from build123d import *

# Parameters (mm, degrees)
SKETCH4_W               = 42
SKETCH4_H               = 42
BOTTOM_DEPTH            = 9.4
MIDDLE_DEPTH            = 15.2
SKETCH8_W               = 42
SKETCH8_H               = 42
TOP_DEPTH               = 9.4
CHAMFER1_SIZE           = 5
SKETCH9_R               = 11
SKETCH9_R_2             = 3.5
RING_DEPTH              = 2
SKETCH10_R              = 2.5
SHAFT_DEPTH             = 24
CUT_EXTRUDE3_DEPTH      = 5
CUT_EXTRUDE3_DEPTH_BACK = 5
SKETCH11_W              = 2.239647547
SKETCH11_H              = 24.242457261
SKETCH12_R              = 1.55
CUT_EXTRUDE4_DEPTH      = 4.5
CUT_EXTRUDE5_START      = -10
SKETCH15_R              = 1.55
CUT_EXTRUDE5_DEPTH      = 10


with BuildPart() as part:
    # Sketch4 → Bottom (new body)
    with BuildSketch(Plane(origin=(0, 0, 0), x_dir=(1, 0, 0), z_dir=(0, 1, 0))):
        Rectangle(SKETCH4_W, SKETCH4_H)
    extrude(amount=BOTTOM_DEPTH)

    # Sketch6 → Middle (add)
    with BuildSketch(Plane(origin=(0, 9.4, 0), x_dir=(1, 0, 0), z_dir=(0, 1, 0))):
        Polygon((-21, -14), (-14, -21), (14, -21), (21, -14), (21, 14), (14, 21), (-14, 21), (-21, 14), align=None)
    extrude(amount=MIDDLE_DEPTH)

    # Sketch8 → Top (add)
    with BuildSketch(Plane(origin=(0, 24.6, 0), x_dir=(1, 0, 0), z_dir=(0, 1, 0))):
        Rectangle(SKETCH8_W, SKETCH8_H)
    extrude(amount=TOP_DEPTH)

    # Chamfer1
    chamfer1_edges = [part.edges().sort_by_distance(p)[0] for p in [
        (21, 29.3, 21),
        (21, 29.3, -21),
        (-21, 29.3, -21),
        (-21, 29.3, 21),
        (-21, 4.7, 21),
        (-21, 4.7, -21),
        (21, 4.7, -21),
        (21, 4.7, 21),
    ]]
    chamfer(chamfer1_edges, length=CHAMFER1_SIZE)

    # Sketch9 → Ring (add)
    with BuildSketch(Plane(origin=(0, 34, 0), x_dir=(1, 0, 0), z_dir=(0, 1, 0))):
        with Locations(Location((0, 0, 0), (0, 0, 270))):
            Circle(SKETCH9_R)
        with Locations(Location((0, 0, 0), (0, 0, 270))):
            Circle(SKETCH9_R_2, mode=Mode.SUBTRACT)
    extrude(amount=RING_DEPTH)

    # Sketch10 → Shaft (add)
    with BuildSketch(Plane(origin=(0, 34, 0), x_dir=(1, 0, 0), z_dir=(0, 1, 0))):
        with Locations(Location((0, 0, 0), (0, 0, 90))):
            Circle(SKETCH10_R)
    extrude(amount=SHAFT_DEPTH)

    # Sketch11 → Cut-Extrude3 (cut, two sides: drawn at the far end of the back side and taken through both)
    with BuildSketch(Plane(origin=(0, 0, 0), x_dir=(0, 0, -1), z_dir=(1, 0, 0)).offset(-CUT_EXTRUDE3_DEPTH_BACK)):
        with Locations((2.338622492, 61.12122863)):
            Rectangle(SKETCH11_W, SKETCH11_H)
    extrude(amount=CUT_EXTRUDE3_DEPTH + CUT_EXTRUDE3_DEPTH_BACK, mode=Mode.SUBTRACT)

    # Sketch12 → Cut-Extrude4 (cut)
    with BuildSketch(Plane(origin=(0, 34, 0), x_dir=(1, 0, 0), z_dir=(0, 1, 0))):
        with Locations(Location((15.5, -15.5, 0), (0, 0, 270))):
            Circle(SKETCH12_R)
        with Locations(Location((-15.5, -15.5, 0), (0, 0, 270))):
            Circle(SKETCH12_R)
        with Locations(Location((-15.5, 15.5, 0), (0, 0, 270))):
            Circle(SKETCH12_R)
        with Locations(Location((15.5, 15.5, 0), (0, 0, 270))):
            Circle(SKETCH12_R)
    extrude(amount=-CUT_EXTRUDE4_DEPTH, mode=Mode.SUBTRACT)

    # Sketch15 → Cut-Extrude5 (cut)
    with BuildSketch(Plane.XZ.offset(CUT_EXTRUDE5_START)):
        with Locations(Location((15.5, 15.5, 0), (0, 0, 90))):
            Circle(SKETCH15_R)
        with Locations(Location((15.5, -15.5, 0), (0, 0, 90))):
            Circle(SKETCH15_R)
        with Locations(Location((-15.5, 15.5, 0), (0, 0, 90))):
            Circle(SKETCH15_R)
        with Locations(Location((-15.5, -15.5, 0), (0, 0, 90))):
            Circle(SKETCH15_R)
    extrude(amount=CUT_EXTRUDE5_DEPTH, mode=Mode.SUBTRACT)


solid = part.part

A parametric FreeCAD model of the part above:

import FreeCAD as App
import Part
import Sketcher

V = App.Vector
Q = App.Units.Quantity


def edges_at(feature, points):
    """Names of the edges that pass closest to the given points."""
    edges = feature.Shape.Edges
    near = lambda p: min(range(len(edges)), key=lambda i: edges[i].distToShape(Part.Vertex(*p))[0])
    return sorted({f"Edge{near(p) + 1}" for p in points})

doc = App.newDocument("Part")
body = doc.addObject("PartDesign::Body", "Body")

sketch1 = doc.addObject("Sketcher::SketchObject", "Sketch")
body.addObject(sketch1)
sketch1.AttachmentSupport = (doc.XZ_Plane, [""])
sketch1.MapMode = "FlatFace"
sketch1.addGeometry(Part.LineSegment(V(-21, -21, 0), V(-21, 21, 0)), False)
sketch1.addGeometry(Part.LineSegment(V(-21, 21, 0), V(21, 21, 0)), False)
sketch1.addGeometry(Part.LineSegment(V(21, 21, 0), V(21, -21, 0)), False)
sketch1.addGeometry(Part.LineSegment(V(21, -21, 0), V(-21, -21, 0)), False)
sketch1.addConstraint(Sketcher.Constraint("Coincident", 0, 2, 1, 1))
sketch1.addConstraint(Sketcher.Constraint("Coincident", 1, 2, 2, 1))
sketch1.addConstraint(Sketcher.Constraint("Coincident", 2, 2, 3, 1))
sketch1.addConstraint(Sketcher.Constraint("Coincident", 3, 2, 0, 1))
sketch1.addConstraint(Sketcher.Constraint("Vertical", 0))
sketch1.addConstraint(Sketcher.Constraint("Horizontal", 1))
sketch1.addConstraint(Sketcher.Constraint("Vertical", 2))
sketch1.addConstraint(Sketcher.Constraint("Horizontal", 3))
sketch1.addConstraint(Sketcher.Constraint("Symmetric", 0, 2, 2, 2, -1, 1))
sketch1.addConstraint(Sketcher.Constraint("Equal", 3, 0))
sketch1.addConstraint(Sketcher.Constraint("DistanceX", 1, 1, 1, 2, Q("42 mm")))
pad1 = doc.addObject("PartDesign::Pad", "Pad")
body.addObject(pad1)
pad1.Profile = sketch1
pad1.Length = 9.4
pad1.Reversed = True

sketch2 = doc.addObject("Sketcher::SketchObject", "Sketch001")
body.addObject(sketch2)
sketch2.AttachmentSupport = (doc.XZ_Plane, [""])
sketch2.MapMode = "FlatFace"
sketch2.AttachmentOffset = App.Placement(V(0, 0, -9.4), App.Rotation())
sketch2.addGeometry(Part.LineSegment(V(-21, 14, 0), V(-14, 21, 0)), False)
sketch2.addGeometry(Part.LineSegment(V(-14, 21, 0), V(14, 21, 0)), False)
sketch2.addGeometry(Part.LineSegment(V(14, 21, 0), V(21, 14, 0)), False)
sketch2.addGeometry(Part.LineSegment(V(21, 14, 0), V(21, -14, 0)), False)
sketch2.addGeometry(Part.LineSegment(V(21, -14, 0), V(14, -21, 0)), False)
sketch2.addGeometry(Part.LineSegment(V(14, -21, 0), V(-14, -21, 0)), False)
sketch2.addGeometry(Part.LineSegment(V(-14, -21, 0), V(-21, -14, 0)), False)
sketch2.addGeometry(Part.LineSegment(V(-21, -14, 0), V(-21, 14, 0)), False)
sketch2.addConstraint(Sketcher.Constraint("Coincident", 0, 2, 1, 1))
sketch2.addConstraint(Sketcher.Constraint("Coincident", 1, 2, 2, 1))
sketch2.addConstraint(Sketcher.Constraint("Coincident", 2, 2, 3, 1))
sketch2.addConstraint(Sketcher.Constraint("Coincident", 3, 2, 4, 1))
sketch2.addConstraint(Sketcher.Constraint("Coincident", 4, 2, 5, 1))
sketch2.addConstraint(Sketcher.Constraint("Coincident", 5, 2, 6, 1))
sketch2.addConstraint(Sketcher.Constraint("Coincident", 6, 2, 7, 1))
sketch2.addConstraint(Sketcher.Constraint("Coincident", 7, 2, 0, 1))
sketch2.addConstraint(Sketcher.Constraint("Horizontal", 1))
sketch2.addConstraint(Sketcher.Constraint("Vertical", 3))
sketch2.addConstraint(Sketcher.Constraint("Horizontal", 5))
sketch2.addConstraint(Sketcher.Constraint("Vertical", 7))
sketch2.addConstraint(Sketcher.Constraint("Symmetric", 0, 2, 4, 2, -1, 1))
sketch2.addConstraint(Sketcher.Constraint("Symmetric", 2, 2, 6, 2, -1, 1))
sketch2.addConstraint(Sketcher.Constraint("Perpendicular", 0, 2))
sketch2.addConstraint(Sketcher.Constraint("Perpendicular", 2, 4))
sketch2.addConstraint(Sketcher.Constraint("Perpendicular", 4, 6))
sketch2.addConstraint(Sketcher.Constraint("Horizontal", 3, 2, 6, 2))
sketch2.addConstraint(Sketcher.Constraint("Vertical", 1, 2, 4, 2))
sketch2.addConstraint(Sketcher.Constraint("Equal", 5, 3))
sketch2.addConstraint(Sketcher.Constraint("DistanceX", 1, 1, 1, 2, Q("28 mm")))
sketch2.addConstraint(Sketcher.Constraint("DistanceY", -1, 1, 0, 2, Q("21 mm")))
pad2 = doc.addObject("PartDesign::Pad", "Pad001")
body.addObject(pad2)
pad2.Profile = sketch2
pad2.Length = 15.2
pad2.Reversed = True

sketch3 = doc.addObject("Sketcher::SketchObject", "Sketch002")
body.addObject(sketch3)
sketch3.AttachmentSupport = (doc.XZ_Plane, [""])
sketch3.MapMode = "FlatFace"
sketch3.AttachmentOffset = App.Placement(V(0, 0, -24.6), App.Rotation())
sketch3.addGeometry(Part.LineSegment(V(-21, -21, 0), V(-21, 21, 0)), False)
sketch3.addGeometry(Part.LineSegment(V(-21, 21, 0), V(21, 21, 0)), False)
sketch3.addGeometry(Part.LineSegment(V(21, 21, 0), V(21, -21, 0)), False)
sketch3.addGeometry(Part.LineSegment(V(21, -21, 0), V(-21, -21, 0)), False)
sketch3.addConstraint(Sketcher.Constraint("Coincident", 0, 2, 1, 1))
sketch3.addConstraint(Sketcher.Constraint("Coincident", 1, 2, 2, 1))
sketch3.addConstraint(Sketcher.Constraint("Coincident", 2, 2, 3, 1))
sketch3.addConstraint(Sketcher.Constraint("Coincident", 3, 2, 0, 1))
sketch3.addConstraint(Sketcher.Constraint("Vertical", 0))
sketch3.addConstraint(Sketcher.Constraint("Horizontal", 1))
sketch3.addConstraint(Sketcher.Constraint("Vertical", 2))
sketch3.addConstraint(Sketcher.Constraint("Horizontal", 3))
sketch3.addConstraint(Sketcher.Constraint("Symmetric", 0, 2, 2, 2, -1, 1))
sketch3.addConstraint(Sketcher.Constraint("Equal", 3, 0))
sketch3.addConstraint(Sketcher.Constraint("DistanceX", 1, 1, 1, 2, Q("42 mm")))
pad3 = doc.addObject("PartDesign::Pad", "Pad002")
body.addObject(pad3)
pad3.Profile = sketch3
pad3.Length = 9.4
pad3.Reversed = True
doc.recompute()

chamfer = doc.addObject("PartDesign::Chamfer", "Chamfer")
body.addObject(chamfer)
chamfer.Base = (pad3, edges_at(pad3, [
    (21, 29.3, 21),
    (21, 29.3, -21),
    (-21, 29.3, -21),
    (-21, 29.3, 21),
    (-21, 4.7, 21),
    (-21, 4.7, -21),
    (21, 4.7, -21),
    (21, 4.7, 21),
]))
chamfer.Size = 5

sketch4 = doc.addObject("Sketcher::SketchObject", "Sketch003")
body.addObject(sketch4)
sketch4.AttachmentSupport = (doc.XZ_Plane, [""])
sketch4.MapMode = "FlatFace"
sketch4.AttachmentOffset = App.Placement(V(0, 0, -34), App.Rotation())
sketch4.addGeometry(Part.Circle(V(0, 0, 0), V(0, 0, 1), 11), False)
sketch4.addGeometry(Part.Circle(V(0, 0, 0), V(0, 0, 1), 3.5), False)
sketch4.addConstraint(Sketcher.Constraint("Coincident", 0, 3, -1, 1))
sketch4.addConstraint(Sketcher.Constraint("Coincident", 1, 3, -1, 1))
sketch4.addConstraint(Sketcher.Constraint("Diameter", 0, Q("22 mm")))
sketch4.addConstraint(Sketcher.Constraint("Diameter", 1, Q("7 mm")))
pad4 = doc.addObject("PartDesign::Pad", "Pad003")
body.addObject(pad4)
pad4.Profile = sketch4
pad4.Length = 2
pad4.Reversed = True

sketch5 = doc.addObject("Sketcher::SketchObject", "Sketch004")
body.addObject(sketch5)
sketch5.AttachmentSupport = (doc.XZ_Plane, [""])
sketch5.MapMode = "FlatFace"
sketch5.AttachmentOffset = App.Placement(V(0, 0, -34), App.Rotation())
sketch5.addGeometry(Part.Circle(V(0, 0, 0), V(0, 0, 1), 2.5), False)
sketch5.addConstraint(Sketcher.Constraint("Coincident", 0, 3, -1, 1))
sketch5.addConstraint(Sketcher.Constraint("Diameter", 0, Q("5 mm")))
pad5 = doc.addObject("PartDesign::Pad", "Pad004")
body.addObject(pad5)
pad5.Profile = sketch5
pad5.Length = 24
pad5.Reversed = True

sketch6 = doc.addObject("Sketcher::SketchObject", "Sketch005")
body.addObject(sketch6)
sketch6.AttachmentSupport = (doc.YZ_Plane, [""])
sketch6.MapMode = "FlatFace"
sketch6.addGeometry(Part.LineSegment(V(73.2, -1.2, 0), V(49, -1.2, 0)), False)
sketch6.addGeometry(Part.LineSegment(V(49, -1.2, 0), V(49, -3.5, 0)), False)
sketch6.addGeometry(Part.LineSegment(V(49, -3.5, 0), V(73.2, -3.5, 0)), False)
sketch6.addGeometry(Part.LineSegment(V(73.2, -3.5, 0), V(73.2, -1.2, 0)), False)
sketch6.addConstraint(Sketcher.Constraint("Coincident", 0, 2, 1, 1))
sketch6.addConstraint(Sketcher.Constraint("Coincident", 1, 2, 2, 1))
sketch6.addConstraint(Sketcher.Constraint("Coincident", 2, 2, 3, 1))
sketch6.addConstraint(Sketcher.Constraint("Coincident", 3, 2, 0, 1))
sketch6.addConstraint(Sketcher.Constraint("Horizontal", 0))
sketch6.addConstraint(Sketcher.Constraint("Vertical", 1))
sketch6.addConstraint(Sketcher.Constraint("Horizontal", 2))
sketch6.addConstraint(Sketcher.Constraint("Vertical", 3))
sketch6.addConstraint(Sketcher.Constraint("DistanceX", -1, 1, 0, 2, Q("49 mm")))
sketch6.addConstraint(Sketcher.Constraint("DistanceY", 0, 2, -1, 1, Q("1.218799 mm")))
sketch6.addConstraint(Sketcher.Constraint("DistanceX", 0, 2, 0, 1, Q("24.242457 mm")))
sketch6.addConstraint(Sketcher.Constraint("DistanceY", 1, 2, 1, 1, Q("2.239648 mm")))
pocket1 = doc.addObject("PartDesign::Pocket", "Pocket")
body.addObject(pocket1)
pocket1.Profile = sketch6
pocket1.Type = "ThroughAll"
pocket1.Midplane = True

sketch7 = doc.addObject("Sketcher::SketchObject", "Sketch006")
body.addObject(sketch7)
sketch7.AttachmentSupport = (doc.XZ_Plane, [""])
sketch7.MapMode = "FlatFace"
sketch7.AttachmentOffset = App.Placement(V(0, 0, -34), App.Rotation())
sketch7.addGeometry(Part.Circle(V(15.5, 15.5, 0), V(0, 0, 1), 1.6), False)
sketch7.addGeometry(Part.Circle(V(-15.5, 15.5, 0), V(0, 0, 1), 1.6), False)
sketch7.addGeometry(Part.Circle(V(-15.5, -15.5, 0), V(0, 0, 1), 1.6), False)
sketch7.addGeometry(Part.Circle(V(15.5, -15.5, 0), V(0, 0, 1), 1.6), False)
sketch7.addConstraint(Sketcher.Constraint("Equal", 0, 1))
sketch7.addConstraint(Sketcher.Constraint("Equal", 1, 2))
sketch7.addConstraint(Sketcher.Constraint("Equal", 2, 3))
sketch7.addConstraint(Sketcher.Constraint("Symmetric", 0, 3, 2, 3, -1, 1))
sketch7.addConstraint(Sketcher.Constraint("Symmetric", 1, 3, 3, 3, -1, 1))
sketch7.addConstraint(Sketcher.Constraint("Symmetric", 0, 3, 1, 3, -2))
sketch7.addConstraint(Sketcher.Constraint("Diameter", 0, Q("3.1 mm")))
sketch7.addConstraint(Sketcher.Constraint("DistanceX", 1, 3, 0, 3, Q("31 mm")))
sketch7.addConstraint(Sketcher.Constraint("DistanceY", 2, 3, 1, 3, Q("31 mm")))
pocket2 = doc.addObject("PartDesign::Pocket", "Pocket001")
body.addObject(pocket2)
pocket2.Profile = sketch7
pocket2.Length = 4.5
pocket2.Reversed = True

sketch8 = doc.addObject("Sketcher::SketchObject", "Sketch007")
body.addObject(sketch8)
sketch8.AttachmentSupport = (doc.XZ_Plane, [""])
sketch8.MapMode = "FlatFace"
sketch8.AttachmentOffset = App.Placement(V(0, 0, -10), App.Rotation())
sketch8.addGeometry(Part.Circle(V(15.5, 15.5, 0), V(0, 0, 1), 1.6), False)
sketch8.addGeometry(Part.Circle(V(15.5, -15.5, 0), V(0, 0, 1), 1.6), False)
sketch8.addGeometry(Part.Circle(V(-15.5, 15.5, 0), V(0, 0, 1), 1.6), False)
sketch8.addGeometry(Part.Circle(V(-15.5, -15.5, 0), V(0, 0, 1), 1.6), False)
sketch8.addConstraint(Sketcher.Constraint("Equal", 0, 1))
sketch8.addConstraint(Sketcher.Constraint("Equal", 1, 2))
sketch8.addConstraint(Sketcher.Constraint("Equal", 2, 3))
sketch8.addConstraint(Sketcher.Constraint("Symmetric", 1, 3, 2, 3, -1, 1))
sketch8.addConstraint(Sketcher.Constraint("Symmetric", 0, 3, 3, 3, -1, 1))
sketch8.addConstraint(Sketcher.Constraint("Symmetric", 0, 3, 2, 3, -2))
sketch8.addConstraint(Sketcher.Constraint("Diameter", 0, Q("3.1 mm")))
sketch8.addConstraint(Sketcher.Constraint("DistanceY", 1, 3, 0, 3, Q("31 mm")))
sketch8.addConstraint(Sketcher.Constraint("DistanceX", 2, 3, 0, 3, Q("31 mm")))
pocket3 = doc.addObject("PartDesign::Pocket", "Pocket002")
body.addObject(pocket3)
pocket3.Profile = sketch8
pocket3.Length = 10
pocket3.Reversed = True

doc.recompute()
